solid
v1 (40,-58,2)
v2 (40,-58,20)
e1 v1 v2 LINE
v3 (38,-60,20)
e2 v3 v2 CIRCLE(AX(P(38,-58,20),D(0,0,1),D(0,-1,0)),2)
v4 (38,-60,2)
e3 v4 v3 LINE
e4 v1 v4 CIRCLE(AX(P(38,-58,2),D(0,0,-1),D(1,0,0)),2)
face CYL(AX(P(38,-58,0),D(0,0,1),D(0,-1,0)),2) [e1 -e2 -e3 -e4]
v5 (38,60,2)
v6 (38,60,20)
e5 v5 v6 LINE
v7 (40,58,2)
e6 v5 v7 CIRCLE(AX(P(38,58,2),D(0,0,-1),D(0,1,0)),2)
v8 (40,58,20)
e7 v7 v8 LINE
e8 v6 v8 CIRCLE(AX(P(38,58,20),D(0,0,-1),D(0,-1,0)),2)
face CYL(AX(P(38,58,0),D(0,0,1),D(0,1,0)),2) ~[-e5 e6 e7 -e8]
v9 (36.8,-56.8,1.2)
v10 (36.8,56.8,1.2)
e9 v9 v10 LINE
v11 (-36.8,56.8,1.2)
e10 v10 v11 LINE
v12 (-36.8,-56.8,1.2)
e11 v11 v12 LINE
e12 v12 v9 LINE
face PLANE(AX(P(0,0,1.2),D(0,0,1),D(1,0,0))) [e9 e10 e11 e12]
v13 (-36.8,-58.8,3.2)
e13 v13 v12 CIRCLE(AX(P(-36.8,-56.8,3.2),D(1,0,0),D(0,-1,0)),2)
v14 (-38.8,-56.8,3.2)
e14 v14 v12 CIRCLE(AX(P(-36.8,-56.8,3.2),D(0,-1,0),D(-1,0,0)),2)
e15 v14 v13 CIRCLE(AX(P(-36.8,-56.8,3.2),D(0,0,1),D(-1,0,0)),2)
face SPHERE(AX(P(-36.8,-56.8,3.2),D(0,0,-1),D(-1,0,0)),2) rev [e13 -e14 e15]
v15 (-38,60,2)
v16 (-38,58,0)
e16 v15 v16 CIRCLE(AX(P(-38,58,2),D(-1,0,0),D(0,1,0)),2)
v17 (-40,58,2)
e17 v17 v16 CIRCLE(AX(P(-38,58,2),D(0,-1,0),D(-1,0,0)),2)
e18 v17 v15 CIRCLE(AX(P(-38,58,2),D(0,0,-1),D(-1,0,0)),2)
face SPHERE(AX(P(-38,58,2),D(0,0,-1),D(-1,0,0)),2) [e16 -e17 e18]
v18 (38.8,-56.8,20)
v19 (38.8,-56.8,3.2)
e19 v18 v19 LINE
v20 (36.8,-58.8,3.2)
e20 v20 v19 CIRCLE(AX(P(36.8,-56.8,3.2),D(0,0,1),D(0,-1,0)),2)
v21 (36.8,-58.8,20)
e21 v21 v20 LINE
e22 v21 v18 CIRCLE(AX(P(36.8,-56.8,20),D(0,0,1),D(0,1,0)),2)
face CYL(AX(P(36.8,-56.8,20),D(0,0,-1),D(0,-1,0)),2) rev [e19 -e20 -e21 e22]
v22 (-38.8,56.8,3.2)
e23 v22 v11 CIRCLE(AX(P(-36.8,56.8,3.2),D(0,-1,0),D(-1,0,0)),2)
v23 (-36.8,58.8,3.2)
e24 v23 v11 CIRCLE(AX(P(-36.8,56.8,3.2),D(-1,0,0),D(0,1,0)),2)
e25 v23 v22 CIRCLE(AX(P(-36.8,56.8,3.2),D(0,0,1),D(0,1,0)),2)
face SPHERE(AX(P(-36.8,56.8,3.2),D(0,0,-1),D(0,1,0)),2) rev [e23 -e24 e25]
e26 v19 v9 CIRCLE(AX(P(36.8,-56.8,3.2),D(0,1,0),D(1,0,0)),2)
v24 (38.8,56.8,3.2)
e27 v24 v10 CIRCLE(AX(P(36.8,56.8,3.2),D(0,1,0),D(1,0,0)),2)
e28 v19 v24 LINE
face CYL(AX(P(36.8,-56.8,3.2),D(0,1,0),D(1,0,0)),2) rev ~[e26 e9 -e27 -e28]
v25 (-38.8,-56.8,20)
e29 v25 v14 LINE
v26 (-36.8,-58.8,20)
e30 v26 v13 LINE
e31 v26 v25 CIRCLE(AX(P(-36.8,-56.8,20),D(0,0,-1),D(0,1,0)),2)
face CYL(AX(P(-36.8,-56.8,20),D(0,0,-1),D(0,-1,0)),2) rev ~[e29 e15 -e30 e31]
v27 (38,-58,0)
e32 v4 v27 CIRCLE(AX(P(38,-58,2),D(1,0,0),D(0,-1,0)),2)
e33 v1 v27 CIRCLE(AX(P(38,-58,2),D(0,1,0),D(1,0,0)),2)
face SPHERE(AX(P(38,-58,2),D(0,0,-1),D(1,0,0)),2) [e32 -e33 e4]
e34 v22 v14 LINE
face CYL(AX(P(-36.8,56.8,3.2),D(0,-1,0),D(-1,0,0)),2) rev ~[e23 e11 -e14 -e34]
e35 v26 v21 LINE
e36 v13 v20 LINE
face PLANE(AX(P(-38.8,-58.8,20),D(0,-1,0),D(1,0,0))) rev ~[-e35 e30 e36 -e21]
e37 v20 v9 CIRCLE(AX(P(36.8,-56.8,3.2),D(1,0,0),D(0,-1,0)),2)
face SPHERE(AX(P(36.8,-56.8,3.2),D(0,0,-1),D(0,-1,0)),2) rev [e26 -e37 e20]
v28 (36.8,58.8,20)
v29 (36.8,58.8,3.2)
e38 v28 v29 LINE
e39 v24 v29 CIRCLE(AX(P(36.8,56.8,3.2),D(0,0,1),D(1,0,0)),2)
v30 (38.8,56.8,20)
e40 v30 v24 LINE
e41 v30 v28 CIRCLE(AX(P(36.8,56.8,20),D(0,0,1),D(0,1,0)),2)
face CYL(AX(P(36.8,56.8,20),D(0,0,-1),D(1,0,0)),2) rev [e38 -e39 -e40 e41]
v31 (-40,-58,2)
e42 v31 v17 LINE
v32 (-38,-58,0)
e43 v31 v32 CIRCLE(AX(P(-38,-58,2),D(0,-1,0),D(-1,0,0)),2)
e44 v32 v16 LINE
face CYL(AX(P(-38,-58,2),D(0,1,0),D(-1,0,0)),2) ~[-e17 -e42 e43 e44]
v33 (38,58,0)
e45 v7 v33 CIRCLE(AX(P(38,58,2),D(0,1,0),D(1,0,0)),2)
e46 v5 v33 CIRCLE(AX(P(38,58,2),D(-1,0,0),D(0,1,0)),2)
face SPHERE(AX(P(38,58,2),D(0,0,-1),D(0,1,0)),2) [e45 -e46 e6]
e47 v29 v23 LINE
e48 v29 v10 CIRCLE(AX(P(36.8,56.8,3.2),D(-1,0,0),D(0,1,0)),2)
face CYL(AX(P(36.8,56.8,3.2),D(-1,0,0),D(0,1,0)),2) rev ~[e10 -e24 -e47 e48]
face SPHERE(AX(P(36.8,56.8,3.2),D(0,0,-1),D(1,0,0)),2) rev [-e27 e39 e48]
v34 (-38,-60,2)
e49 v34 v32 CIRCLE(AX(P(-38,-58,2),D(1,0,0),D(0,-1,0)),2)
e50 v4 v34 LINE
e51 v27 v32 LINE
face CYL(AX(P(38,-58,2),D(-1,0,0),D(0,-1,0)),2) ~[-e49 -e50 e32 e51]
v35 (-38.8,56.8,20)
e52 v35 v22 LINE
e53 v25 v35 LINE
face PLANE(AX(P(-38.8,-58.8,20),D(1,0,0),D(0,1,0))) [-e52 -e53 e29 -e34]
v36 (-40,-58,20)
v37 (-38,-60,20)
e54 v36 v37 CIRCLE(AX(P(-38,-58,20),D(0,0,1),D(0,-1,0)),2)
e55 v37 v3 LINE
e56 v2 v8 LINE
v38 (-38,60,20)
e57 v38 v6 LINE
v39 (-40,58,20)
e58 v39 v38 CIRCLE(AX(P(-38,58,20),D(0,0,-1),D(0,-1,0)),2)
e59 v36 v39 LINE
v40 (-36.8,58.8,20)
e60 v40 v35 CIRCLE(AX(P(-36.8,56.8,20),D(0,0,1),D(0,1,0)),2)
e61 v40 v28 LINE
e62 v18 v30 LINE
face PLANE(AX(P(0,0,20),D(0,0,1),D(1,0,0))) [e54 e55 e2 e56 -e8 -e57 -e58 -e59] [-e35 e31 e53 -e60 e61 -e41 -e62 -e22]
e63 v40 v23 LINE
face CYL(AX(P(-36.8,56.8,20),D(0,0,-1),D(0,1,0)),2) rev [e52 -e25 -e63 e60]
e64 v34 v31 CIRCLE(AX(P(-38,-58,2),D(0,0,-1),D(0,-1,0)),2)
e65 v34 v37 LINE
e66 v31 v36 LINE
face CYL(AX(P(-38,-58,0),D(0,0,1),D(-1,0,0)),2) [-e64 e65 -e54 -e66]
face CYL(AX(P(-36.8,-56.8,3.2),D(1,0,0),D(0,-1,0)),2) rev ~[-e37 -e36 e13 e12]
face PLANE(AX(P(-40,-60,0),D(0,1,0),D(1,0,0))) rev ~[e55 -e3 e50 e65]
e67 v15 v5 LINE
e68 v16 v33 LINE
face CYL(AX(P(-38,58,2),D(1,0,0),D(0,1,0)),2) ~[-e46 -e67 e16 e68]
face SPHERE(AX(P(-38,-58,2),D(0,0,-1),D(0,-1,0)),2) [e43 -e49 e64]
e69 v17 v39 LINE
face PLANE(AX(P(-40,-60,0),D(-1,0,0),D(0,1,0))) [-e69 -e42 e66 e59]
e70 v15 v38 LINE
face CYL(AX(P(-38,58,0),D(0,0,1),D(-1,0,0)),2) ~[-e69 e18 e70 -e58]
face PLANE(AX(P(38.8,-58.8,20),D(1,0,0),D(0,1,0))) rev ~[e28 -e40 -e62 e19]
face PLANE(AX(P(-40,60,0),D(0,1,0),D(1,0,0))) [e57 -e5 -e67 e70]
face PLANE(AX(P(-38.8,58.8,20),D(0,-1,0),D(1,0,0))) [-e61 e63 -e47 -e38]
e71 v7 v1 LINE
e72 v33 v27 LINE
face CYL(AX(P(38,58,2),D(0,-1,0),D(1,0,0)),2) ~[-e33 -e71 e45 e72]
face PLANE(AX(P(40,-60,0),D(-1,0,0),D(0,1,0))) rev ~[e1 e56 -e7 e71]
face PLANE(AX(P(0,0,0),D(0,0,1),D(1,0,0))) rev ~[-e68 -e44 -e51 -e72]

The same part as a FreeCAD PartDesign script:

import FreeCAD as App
import Part
import Sketcher
from FreeCAD import Vector
Q = App.Units.Quantity


def edges_at(feature, points):
    """Names of the edges that pass closest to the given points."""
    edges = feature.Shape.Edges
    near = lambda p: min(range(len(edges)), key=lambda i: edges[i].distToShape(Part.Vertex(*p))[0])
    return sorted({f"Edge{near(p) + 1}" for p in points})

doc = App.newDocument("Part")
body = doc.addObject("PartDesign::Body", "Body")

sketch1 = body.newObject("Sketcher::SketchObject", "Sketch")
sketch1.AttachmentSupport = (doc.getObject("XY_Plane"), [""])
sketch1.MapMode = "FlatFace"
sketch1.addGeometry(Part.LineSegment(Vector(-40, 60, 0), Vector(-40, -60, 0)), False)
sketch1.addGeometry(Part.LineSegment(Vector(-40, -60, 0), Vector(40, -60, 0)), False)
sketch1.addGeometry(Part.LineSegment(Vector(40, -60, 0), Vector(40, 60, 0)), False)
sketch1.addGeometry(Part.LineSegment(Vector(40, 60, 0), Vector(-40, 60, 0)), False)
sketch1.addConstraint(Sketcher.Constraint("Coincident", 0, 2, 1, 1))
sketch1.addConstraint(Sketcher.Constraint("Coincident", 1, 2, 2, 1))
sketch1.addConstraint(Sketcher.Constraint("Coincident", 2, 2, 3, 1))
sketch1.addConstraint(Sketcher.Constraint("Coincident", 3, 2, 0, 1))
sketch1.addConstraint(Sketcher.Constraint("Vertical", 0))
sketch1.addConstraint(Sketcher.Constraint("Horizontal", 1))
sketch1.addConstraint(Sketcher.Constraint("Vertical", 2))
sketch1.addConstraint(Sketcher.Constraint("Horizontal", 3))
sketch1.addConstraint(Sketcher.Constraint("Symmetric", 0, 2, 2, 2, -1, 1))
sketch1.addConstraint(Sketcher.Constraint("DistanceX", 1, 1, 1, 2, Q("80 mm")))
sketch1.addConstraint(Sketcher.Constraint("DistanceY", 0, 2, 0, 1, Q("120 mm")))
pad1 = body.newObject("PartDesign::Pad", "Pad")
pad1.Profile = sketch1
pad1.Length = 20

sketch2 = body.newObject("Sketcher::SketchObject", "Sketch001")
sketch2.AttachmentSupport = (doc.getObject("XY_Plane"), [""])
sketch2.MapMode = "FlatFace"
sketch2.AttachmentOffset = App.Placement(Vector(0, 0, 20), App.Rotation())
sketch2.addGeometry(Part.LineSegment(Vector(-39, 59, 0), Vector(-39, -59, 0)), False)
sketch2.addGeometry(Part.LineSegment(Vector(-39, -59, 0), Vector(39, -59, 0)), False)
sketch2.addGeometry(Part.LineSegment(Vector(39, -59, 0), Vector(39, 59, 0)), False)
sketch2.addGeometry(Part.LineSegment(Vector(39, 59, 0), Vector(-39, 59, 0)), False)
sketch2.addConstraint(Sketcher.Constraint("Coincident", 0, 2, 1, 1))
sketch2.addConstraint(Sketcher.Constraint("Coincident", 1, 2, 2, 1))
sketch2.addConstraint(Sketcher.Constraint("Coincident", 2, 2, 3, 1))
sketch2.addConstraint(Sketcher.Constraint("Coincident", 3, 2, 0, 1))
sketch2.addConstraint(Sketcher.Constraint("Vertical", 0))
sketch2.addConstraint(Sketcher.Constraint("Horizontal", 1))
sketch2.addConstraint(Sketcher.Constraint("Vertical", 2))
sketch2.addConstraint(Sketcher.Constraint("Horizontal", 3))
sketch2.addConstraint(Sketcher.Constraint("Symmetric", 0, 2, 2, 2, -1, 1))
sketch2.addConstraint(Sketcher.Constraint("DistanceX", 1, 1, 1, 2, Q("77.6 mm")))
sketch2.addConstraint(Sketcher.Constraint("DistanceY", 0, 2, 0, 1, Q("117.6 mm")))
pocket1 = body.newObject("PartDesign::Pocket", "Pocket")
pocket1.Profile = sketch2
pocket1.Length = 18.8
doc.recompute()

fillet = body.newObject("PartDesign::Fillet", "Fillet")
fillet.Base = (pocket1, edges_at(pocket1, [
    (40, -60, 10),
    (40, 60, 10),
    (-40, -60, 10),
    (-40, 60, 10),
]))
fillet.Radius = 2
doc.recompute()

fillet2 = body.newObject("PartDesign::Fillet", "Fillet001")
fillet2.Base = (fillet, edges_at(fillet, [
    (-38.8, 58.8, 10.6),
    (-38.8, -58.8, 10.6),
    (38.8, -58.8, 10.6),
    (38.8, 58.8, 10.6),
]))
fillet2.Radius = 2
doc.recompute()

fillet3 = body.newObject("PartDesign::Fillet", "Fillet002")
fillet3.Base = (fillet2, edges_at(fillet2, [
    (0, -58.8, 1.2),
    (-38.214, -58.214, 1.2),
    (38.214, -58.214, 1.2),
    (-38.8, 0, 1.2),
    (38.8, 0, 1.2),
    (-38.214, 58.214, 1.2),
    (38.214, 58.214, 1.2),
    (0, 58.8, 1.2),
]))
fillet3.Radius = 2
doc.recompute()

fillet4 = body.newObject("PartDesign::Fillet", "Fillet003")
fillet4.Base = (fillet3, edges_at(fillet3, [
    (-40, 0, 0),
    (-39.414, 59.414, 0),
    (-39.414, -59.414, 0),
    (0, 60, 0),
    (0, -60, 0),
    (39.414, 59.414, 0),
    (39.414, -59.414, 0),
    (40, 0, 0),
]))
fillet4.Radius = 2

doc.recompute()
